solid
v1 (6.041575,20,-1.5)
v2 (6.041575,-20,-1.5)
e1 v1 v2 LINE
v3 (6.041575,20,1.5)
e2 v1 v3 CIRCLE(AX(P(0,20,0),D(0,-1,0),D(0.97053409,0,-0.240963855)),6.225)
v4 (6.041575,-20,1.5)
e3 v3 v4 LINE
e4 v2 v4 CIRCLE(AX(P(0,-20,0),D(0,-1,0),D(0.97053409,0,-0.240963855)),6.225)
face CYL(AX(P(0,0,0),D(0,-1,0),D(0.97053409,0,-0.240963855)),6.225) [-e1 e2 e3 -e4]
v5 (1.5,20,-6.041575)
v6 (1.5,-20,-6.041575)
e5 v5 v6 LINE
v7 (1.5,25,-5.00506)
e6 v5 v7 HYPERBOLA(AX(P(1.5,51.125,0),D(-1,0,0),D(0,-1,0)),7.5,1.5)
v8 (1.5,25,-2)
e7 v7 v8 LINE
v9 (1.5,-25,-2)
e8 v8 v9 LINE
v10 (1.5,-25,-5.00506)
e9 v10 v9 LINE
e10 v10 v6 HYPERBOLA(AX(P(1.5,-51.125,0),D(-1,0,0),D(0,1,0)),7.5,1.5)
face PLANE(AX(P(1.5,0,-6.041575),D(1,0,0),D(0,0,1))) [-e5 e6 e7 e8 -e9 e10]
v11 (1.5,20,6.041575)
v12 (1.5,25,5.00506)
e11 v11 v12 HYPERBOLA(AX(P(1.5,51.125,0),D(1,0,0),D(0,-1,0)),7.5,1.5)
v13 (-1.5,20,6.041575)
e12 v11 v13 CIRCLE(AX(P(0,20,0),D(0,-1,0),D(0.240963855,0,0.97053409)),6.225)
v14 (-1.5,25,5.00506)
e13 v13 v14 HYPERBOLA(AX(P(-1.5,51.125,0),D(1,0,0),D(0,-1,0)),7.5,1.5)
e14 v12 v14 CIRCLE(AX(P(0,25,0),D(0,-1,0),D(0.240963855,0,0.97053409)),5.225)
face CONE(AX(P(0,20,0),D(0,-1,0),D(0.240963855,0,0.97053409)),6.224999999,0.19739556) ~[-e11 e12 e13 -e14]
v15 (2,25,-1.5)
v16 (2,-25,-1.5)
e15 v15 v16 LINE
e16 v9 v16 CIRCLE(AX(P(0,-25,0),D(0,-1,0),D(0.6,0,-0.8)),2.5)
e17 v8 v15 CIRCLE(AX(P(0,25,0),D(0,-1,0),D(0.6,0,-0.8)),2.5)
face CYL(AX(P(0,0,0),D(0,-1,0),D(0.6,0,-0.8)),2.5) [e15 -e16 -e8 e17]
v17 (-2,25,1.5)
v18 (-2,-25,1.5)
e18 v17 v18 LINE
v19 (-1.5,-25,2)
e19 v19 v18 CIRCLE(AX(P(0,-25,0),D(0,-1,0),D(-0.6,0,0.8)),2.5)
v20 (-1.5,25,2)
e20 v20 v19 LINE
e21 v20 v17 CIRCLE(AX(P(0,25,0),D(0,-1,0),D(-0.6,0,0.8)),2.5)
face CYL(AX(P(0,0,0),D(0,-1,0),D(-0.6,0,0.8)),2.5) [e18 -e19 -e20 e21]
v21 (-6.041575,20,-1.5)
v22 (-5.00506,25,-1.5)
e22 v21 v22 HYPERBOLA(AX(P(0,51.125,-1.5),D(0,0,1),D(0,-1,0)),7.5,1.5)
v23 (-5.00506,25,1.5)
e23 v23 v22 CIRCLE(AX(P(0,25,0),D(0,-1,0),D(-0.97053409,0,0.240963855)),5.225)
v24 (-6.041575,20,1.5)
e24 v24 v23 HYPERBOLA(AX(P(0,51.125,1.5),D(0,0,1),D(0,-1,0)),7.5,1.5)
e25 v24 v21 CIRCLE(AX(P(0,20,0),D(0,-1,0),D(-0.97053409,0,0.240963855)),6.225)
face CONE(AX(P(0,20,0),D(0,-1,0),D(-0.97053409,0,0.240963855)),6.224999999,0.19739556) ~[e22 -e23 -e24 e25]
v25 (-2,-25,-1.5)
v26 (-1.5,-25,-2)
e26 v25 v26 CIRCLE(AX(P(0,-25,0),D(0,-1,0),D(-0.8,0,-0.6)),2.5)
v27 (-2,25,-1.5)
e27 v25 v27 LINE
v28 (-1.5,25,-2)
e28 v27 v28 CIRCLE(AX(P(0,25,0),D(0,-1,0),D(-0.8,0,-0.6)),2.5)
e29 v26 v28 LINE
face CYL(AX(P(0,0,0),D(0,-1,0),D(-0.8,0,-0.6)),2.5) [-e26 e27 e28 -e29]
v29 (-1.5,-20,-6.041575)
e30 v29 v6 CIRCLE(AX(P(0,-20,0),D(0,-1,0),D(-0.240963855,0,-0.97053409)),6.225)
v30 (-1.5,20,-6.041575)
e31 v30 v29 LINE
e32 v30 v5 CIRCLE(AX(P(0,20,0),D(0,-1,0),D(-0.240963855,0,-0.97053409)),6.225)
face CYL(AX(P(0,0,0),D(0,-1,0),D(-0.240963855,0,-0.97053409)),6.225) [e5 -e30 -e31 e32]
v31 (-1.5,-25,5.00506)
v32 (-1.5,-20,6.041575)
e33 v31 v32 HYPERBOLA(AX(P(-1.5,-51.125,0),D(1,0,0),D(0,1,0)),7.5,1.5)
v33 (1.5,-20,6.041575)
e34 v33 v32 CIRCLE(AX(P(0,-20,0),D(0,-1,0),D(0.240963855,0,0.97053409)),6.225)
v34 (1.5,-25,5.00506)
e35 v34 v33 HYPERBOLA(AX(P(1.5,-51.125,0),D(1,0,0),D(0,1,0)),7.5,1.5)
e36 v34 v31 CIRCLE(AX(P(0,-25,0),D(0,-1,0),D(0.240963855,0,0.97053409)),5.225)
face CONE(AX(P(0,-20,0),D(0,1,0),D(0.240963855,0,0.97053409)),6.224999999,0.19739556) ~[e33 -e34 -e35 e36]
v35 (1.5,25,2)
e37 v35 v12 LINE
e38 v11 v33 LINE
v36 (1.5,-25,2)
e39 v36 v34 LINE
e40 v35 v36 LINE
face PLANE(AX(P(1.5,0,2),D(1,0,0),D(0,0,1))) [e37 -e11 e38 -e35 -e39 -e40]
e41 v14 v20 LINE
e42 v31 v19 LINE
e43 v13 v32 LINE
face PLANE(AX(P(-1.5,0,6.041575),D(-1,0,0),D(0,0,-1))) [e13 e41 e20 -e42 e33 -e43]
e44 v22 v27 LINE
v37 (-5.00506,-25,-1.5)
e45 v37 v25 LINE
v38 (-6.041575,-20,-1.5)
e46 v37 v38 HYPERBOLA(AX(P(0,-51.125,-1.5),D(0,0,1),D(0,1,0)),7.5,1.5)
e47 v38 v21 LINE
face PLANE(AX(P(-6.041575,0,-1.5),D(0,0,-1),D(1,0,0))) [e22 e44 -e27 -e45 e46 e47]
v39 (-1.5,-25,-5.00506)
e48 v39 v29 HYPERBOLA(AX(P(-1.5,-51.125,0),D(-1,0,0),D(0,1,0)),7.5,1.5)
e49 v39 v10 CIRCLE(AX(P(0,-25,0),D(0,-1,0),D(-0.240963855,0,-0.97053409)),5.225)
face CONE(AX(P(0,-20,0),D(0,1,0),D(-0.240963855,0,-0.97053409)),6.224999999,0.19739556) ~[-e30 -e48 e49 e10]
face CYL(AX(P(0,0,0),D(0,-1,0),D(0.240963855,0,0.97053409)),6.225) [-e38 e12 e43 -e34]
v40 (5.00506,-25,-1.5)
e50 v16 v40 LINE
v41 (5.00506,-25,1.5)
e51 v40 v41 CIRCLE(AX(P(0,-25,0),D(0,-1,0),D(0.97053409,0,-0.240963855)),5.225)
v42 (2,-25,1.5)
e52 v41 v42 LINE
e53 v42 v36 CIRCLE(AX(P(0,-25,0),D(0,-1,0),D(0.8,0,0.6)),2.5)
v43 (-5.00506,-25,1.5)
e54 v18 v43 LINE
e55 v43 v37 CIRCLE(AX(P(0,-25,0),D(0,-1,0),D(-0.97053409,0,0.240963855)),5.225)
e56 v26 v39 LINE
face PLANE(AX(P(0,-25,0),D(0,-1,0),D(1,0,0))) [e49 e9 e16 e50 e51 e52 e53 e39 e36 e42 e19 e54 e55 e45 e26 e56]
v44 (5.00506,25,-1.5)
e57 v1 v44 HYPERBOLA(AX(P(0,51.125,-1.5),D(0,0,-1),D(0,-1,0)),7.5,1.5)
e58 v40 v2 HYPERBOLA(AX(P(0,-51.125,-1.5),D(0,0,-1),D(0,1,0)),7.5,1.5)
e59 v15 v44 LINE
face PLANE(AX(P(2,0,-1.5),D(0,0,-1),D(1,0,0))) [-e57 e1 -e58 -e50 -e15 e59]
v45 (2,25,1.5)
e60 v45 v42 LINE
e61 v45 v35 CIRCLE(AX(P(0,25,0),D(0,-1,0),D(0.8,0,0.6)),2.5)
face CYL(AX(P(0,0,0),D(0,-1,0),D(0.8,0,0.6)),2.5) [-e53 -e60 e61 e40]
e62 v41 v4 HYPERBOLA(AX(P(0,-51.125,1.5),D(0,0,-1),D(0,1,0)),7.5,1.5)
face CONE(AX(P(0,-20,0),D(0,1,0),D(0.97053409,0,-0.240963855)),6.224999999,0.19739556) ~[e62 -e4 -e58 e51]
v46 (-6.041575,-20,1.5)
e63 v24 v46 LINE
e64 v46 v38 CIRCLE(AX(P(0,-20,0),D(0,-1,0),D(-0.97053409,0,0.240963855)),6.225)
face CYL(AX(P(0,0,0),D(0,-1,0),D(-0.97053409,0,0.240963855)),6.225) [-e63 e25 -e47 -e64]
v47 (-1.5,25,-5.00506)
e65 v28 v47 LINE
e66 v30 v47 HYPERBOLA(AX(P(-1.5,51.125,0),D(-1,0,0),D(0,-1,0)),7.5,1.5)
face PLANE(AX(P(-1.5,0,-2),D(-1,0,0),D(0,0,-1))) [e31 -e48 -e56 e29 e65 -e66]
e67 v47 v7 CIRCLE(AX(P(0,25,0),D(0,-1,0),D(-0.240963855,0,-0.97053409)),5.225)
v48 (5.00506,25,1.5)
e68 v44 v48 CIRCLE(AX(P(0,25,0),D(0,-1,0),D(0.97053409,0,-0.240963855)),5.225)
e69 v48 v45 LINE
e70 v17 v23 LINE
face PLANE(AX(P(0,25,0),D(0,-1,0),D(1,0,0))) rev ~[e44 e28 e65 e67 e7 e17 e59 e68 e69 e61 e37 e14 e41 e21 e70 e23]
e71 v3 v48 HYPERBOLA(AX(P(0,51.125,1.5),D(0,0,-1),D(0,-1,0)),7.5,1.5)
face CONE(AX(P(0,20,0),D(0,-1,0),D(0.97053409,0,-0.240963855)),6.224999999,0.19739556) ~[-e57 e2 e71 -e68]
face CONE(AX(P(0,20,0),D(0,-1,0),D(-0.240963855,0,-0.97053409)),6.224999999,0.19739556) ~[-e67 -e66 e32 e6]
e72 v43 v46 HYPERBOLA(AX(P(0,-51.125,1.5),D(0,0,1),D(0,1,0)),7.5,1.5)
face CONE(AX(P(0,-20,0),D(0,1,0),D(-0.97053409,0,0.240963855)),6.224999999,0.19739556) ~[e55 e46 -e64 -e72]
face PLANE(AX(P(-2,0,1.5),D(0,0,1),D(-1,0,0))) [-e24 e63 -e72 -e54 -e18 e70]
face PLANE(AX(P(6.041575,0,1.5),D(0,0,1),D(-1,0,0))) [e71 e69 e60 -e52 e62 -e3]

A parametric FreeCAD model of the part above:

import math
import FreeCAD as App
import Part
import Sketcher

V = App.Vector
Q = App.Units.Quantity


def edges_at(feature, points):
    """Names of the edges that pass closest to the given points."""
    edges = feature.Shape.Edges
    near = lambda p: min(range(len(edges)), key=lambda i: edges[i].distToShape(Part.Vertex(*p))[0])
    return sorted({f"Edge{near(p) + 1}" for p in points})

doc = App.newDocument("Part")
params = doc.addObject("Spreadsheet::Sheet", "Params")
for row, (alias, value) in enumerate([
    ("sketch1_radius", "2.5 mm"),
    ("pad1_length", "25 mm"),
    ("pad1_length2", "25 mm"),
    ("chamfer_size", "1 mm"),
    ("chamfer_size2", "5 mm"),
    ("chamfer2_size", "5 mm"),
    ("chamfer2_size2", "1 mm"),
    ("chamfer3_size", "5 mm"),
    ("chamfer3_size2", "1 mm"),
    ("chamfer4_size", "5 mm"),
    ("chamfer4_size2", "1 mm"),
    ("chamfer5_size", "5 mm"),
    ("chamfer5_size2", "1 mm"),
], start=1):
    params.set(f"A{row}", alias)
    params.set(f"B{row}", "=" + value)
    params.setAlias(f"B{row}", alias)

body = doc.addObject("PartDesign::Body", "Body")

sketch1 = body.newObject("Sketcher::SketchObject", "Sketch")
sketch1.AttachmentSupport = (doc.getObject("XZ_Plane"), [""])
sketch1.MapMode = "FlatFace"
sketch1.addGeometry([
    Part.LineSegment(V(-1.5, -2, 0), V(-1.5, -6, 0)),
    Part.ArcOfCircle(Part.Circle(V(0, 0, 0), V(0, 0, 1), 6.2), math.radians(-104), math.radians(-76)),
    Part.LineSegment(V(1.5, -6, 0), V(1.5, -2, 0)),
    Part.ArcOfCircle(Part.Circle(V(0, 0, 0), V(0, 0, 1), 2.5), math.radians(-53.13), math.radians(-36.87)),
    Part.LineSegment(V(2, -1.5, 0), V(6, -1.5, 0)),
    Part.ArcOfCircle(Part.Circle(V(0, 0, 0), V(0, 0, 1), 6.2), math.radians(-14), math.radians(14)),
    Part.LineSegment(V(6, 1.5, 0), V(2, 1.5, 0)),
    Part.ArcOfCircle(Part.Circle(V(0, 0, 0), V(0, 0, 1), 2.5), math.radians(36.87), math.radians(53.13)),
    Part.LineSegment(V(1.5, 2, 0), V(1.5, 6, 0)),
    Part.ArcOfCircle(Part.Circle(V(0, 0, 0), V(0, 0, 1), 6.2), math.radians(76), math.radians(104)),
    Part.LineSegment(V(-1.5, 6, 0), V(-1.5, 2, 0)),
    Part.ArcOfCircle(Part.Circle(V(0, 0, 0), V(0, 0, 1), 2.5), math.radians(126.87), math.radians(143.13)),
    Part.LineSegment(V(-2, 1.5, 0), V(-6, 1.5, 0)),
    Part.ArcOfCircle(Part.Circle(V(0, 0, 0), V(0, 0, 1), 6.2), math.radians(166), math.radians(194)),
    Part.LineSegment(V(-6, -1.5, 0), V(-2, -1.5, 0)),
    Part.ArcOfCircle(Part.Circle(V(0, 0, 0), V(0, 0, 1), 2.5), math.radians(-143.13), math.radians(-126.87)),
], False)
sketch1.addConstraint([
    Sketcher.Constraint("Coincident", 0, 2, 1, 1),
    Sketcher.Constraint("Coincident", 1, 2, 2, 1),
    Sketcher.Constraint("Coincident", 2, 2, 3, 1),
    Sketcher.Constraint("Coincident", 3, 2, 4, 1),
    Sketcher.Constraint("Coincident", 4, 2, 5, 1),
    Sketcher.Constraint("Coincident", 5, 2, 6, 1),
    Sketcher.Constraint("Coincident", 6, 2, 7, 1),
    Sketcher.Constraint("Coincident", 7, 2, 8, 1),
    Sketcher.Constraint("Coincident", 8, 2, 9, 1),
    Sketcher.Constraint("Coincident", 9, 2, 10, 1),
    Sketcher.Constraint("Coincident", 10, 2, 11, 1),
    Sketcher.Constraint("Coincident", 11, 2, 12, 1),
    Sketcher.Constraint("Coincident", 12, 2, 13, 1),
    Sketcher.Constraint("Coincident", 13, 2, 14, 1),
    Sketcher.Constraint("Coincident", 14, 2, 15, 1),
    Sketcher.Constraint("Coincident", 15, 2, 0, 1),
    Sketcher.Constraint("Vertical", 0),
    Sketcher.Constraint("Vertical", 2),
    Sketcher.Constraint("Horizontal", 4),
    Sketcher.Constraint("Horizontal", 6),
    Sketcher.Constraint("Vertical", 8),
    Sketcher.Constraint("Vertical", 10),
    Sketcher.Constraint("Horizontal", 12),
    Sketcher.Constraint("Horizontal", 14),
    Sketcher.Constraint("Coincident", 1, 3, -1, 1),
    Sketcher.Constraint("Coincident", 3, 3, -1, 1),
    Sketcher.Constraint("Coincident", 5, 3, -1, 1),
    Sketcher.Constraint("Coincident", 7, 3, -1, 1),
    Sketcher.Constraint("Coincident", 9, 3, -1, 1),
    Sketcher.Constraint("Coincident", 11, 3, -1, 1),
    Sketcher.Constraint("Coincident", 13, 3, -1, 1),
    Sketcher.Constraint("Coincident", 15, 3, -1, 1),
    Sketcher.Constraint("Equal", 1, 5),
    Sketcher.Constraint("Equal", 3, 7),
    Sketcher.Constraint("Equal", 5, 9),
    Sketcher.Constraint("Equal", 7, 11),
    Sketcher.Constraint("Equal", 9, 13),
    Sketcher.Constraint("Equal", 11, 15),
    Sketcher.Constraint("Horizontal", 0, 2, 1, 2),
    Sketcher.Constraint("Horizontal", 8, 2, 9, 2),
    Sketcher.Constraint("Horizontal", 6, 2, 11, 2),
    Sketcher.Constraint("Horizontal", 4, 2, 13, 2),
    Sketcher.Constraint("Vertical", 4, 2, 5, 2),
    Sketcher.Constraint("Vertical", 2, 2, 7, 2),
    Sketcher.Constraint("Equal", 14, 0),
    Sketcher.Constraint("Radius", 3, Q("2.5 mm")),
    Sketcher.Constraint("DistanceY", 2, 2, -1, 1, Q("2 mm")),
    Sketcher.Constraint("Radius", 1, Q("6.225 mm")),
])
sketch1.setExpression("Constraints[45]", "Params.sketch1_radius")
pad1 = body.newObject("PartDesign::Pad", "Pad")
pad1.Profile = sketch1
pad1.Type = "TwoLengths"
pad1.setExpression("Length", "Params.pad1_length")
pad1.setExpression("Length2", "Params.pad1_length2")
doc.recompute()

chamfer = body.newObject("PartDesign::Chamfer", "Chamfer")
chamfer.Base = (pad1, edges_at(pad1, [
    (0, -25, 6.225),
    (6.225, -25, 0),
    (0, -25, -6.225),
    (-6.225, -25, 0),
]))
chamfer.ChamferType = "Two distances"
chamfer.setExpression("Size", "Params.chamfer_size")
chamfer.setExpression("Size2", "Params.chamfer_size2")
chamfer.FlipDirection = True
doc.recompute()

chamfer2 = body.newObject("PartDesign::Chamfer", "Chamfer001")
chamfer2.Base = (chamfer, edges_at(chamfer, [(0, 25, 6.225)]))
chamfer2.ChamferType = "Two distances"
chamfer2.setExpression("Size", "Params.chamfer2_size")
chamfer2.setExpression("Size2", "Params.chamfer2_size2")
chamfer2.FlipDirection = True
doc.recompute()

chamfer3 = body.newObject("PartDesign::Chamfer", "Chamfer002")
chamfer3.Base = (chamfer2, edges_at(chamfer2, [(6.225, 25, 0)]))
chamfer3.ChamferType = "Two distances"
chamfer3.setExpression("Size", "Params.chamfer3_size")
chamfer3.setExpression("Size2", "Params.chamfer3_size2")
chamfer3.FlipDirection = True
doc.recompute()

chamfer4 = body.newObject("PartDesign::Chamfer", "Chamfer003")
chamfer4.Base = (chamfer3, edges_at(chamfer3, [(-6.225, 25, 0)]))
chamfer4.ChamferType = "Two distances"
chamfer4.setExpression("Size", "Params.chamfer4_size")
chamfer4.setExpression("Size2", "Params.chamfer4_size2")
chamfer4.FlipDirection = True
doc.recompute()

chamfer5 = body.newObject("PartDesign::Chamfer", "Chamfer004")
chamfer5.Base = (chamfer4, edges_at(chamfer4, [(0, 25, -6.225)]))
chamfer5.ChamferType = "Two distances"
chamfer5.setExpression("Size", "Params.chamfer5_size")
chamfer5.setExpression("Size2", "Params.chamfer5_size2")
chamfer5.FlipDirection = True

doc.recompute()
